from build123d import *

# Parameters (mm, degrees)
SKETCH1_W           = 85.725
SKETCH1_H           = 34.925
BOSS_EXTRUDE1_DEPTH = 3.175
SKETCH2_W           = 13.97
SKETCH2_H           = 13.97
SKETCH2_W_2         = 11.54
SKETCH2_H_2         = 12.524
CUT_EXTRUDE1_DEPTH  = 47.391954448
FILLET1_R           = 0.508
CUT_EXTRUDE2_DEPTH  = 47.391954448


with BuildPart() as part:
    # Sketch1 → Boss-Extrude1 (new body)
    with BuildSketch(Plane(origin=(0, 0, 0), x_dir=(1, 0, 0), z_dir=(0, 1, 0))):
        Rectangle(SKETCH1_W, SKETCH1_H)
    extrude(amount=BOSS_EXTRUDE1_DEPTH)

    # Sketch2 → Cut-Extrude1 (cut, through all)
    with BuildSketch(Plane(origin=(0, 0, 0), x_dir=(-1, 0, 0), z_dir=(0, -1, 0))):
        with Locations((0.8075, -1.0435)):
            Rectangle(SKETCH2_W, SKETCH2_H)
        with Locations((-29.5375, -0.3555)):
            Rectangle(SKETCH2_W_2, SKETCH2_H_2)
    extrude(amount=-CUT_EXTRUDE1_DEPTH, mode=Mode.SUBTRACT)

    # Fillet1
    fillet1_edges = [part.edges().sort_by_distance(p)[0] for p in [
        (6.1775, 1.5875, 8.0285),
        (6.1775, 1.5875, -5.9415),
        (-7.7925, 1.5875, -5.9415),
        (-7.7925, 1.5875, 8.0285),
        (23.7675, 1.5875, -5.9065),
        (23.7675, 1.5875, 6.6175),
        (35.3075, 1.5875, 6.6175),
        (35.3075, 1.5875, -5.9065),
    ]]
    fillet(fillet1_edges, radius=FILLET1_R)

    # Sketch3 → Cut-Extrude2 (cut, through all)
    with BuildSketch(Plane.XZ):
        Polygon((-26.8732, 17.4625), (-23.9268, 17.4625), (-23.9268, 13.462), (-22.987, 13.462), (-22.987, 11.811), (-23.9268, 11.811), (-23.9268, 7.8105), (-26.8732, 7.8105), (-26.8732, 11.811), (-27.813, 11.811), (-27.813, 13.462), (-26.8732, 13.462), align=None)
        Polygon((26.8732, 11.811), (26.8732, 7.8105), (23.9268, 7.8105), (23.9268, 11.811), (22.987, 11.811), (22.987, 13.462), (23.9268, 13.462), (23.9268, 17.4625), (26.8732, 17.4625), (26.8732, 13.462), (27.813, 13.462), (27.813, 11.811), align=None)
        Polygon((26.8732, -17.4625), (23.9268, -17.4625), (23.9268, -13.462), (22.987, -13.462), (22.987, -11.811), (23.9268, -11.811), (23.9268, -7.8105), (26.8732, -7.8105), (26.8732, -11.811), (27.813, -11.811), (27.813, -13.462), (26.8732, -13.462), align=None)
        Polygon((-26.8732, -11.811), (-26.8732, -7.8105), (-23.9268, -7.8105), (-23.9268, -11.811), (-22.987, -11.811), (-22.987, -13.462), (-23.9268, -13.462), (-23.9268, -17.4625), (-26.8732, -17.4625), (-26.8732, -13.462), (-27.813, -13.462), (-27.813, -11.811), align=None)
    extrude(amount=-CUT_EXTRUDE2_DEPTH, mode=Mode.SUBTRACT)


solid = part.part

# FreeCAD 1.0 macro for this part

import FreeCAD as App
import Part
import Sketcher
Q = App.Units.Quantity


def edges_at(feature, points):
    """Names of the edges that pass closest to the given points."""
    edges = feature.Shape.Edges
    near = lambda p: min(range(len(edges)), key=lambda i: edges[i].distToShape(Part.Vertex(*p))[0])
    return sorted({f"Edge{near(p) + 1}" for p in points})

doc = App.newDocument("Part")
body = doc.addObject("PartDesign::Body", "Body")

# Sketch on XZ plane
sketch1 = body.newObject("Sketcher::SketchObject", "Sketch")
sketch1.AttachmentSupport = (doc.getObject("XZ_Plane"), [""])
sketch1.MapMode = "FlatFace"
sketch1.addGeometry(Part.LineSegment(App.Vector(-42.8625, -17.4625, 0), App.Vector(-42.8625, 17.4625, 0)), False)
sketch1.addGeometry(Part.LineSegment(App.Vector(-42.8625, 17.4625, 0), App.Vector(42.8625, 17.4625, 0)), False)
sketch1.addGeometry(Part.LineSegment(App.Vector(42.8625, 17.4625, 0), App.Vector(42.8625, -17.4625, 0)), False)
sketch1.addGeometry(Part.LineSegment(App.Vector(42.8625, -17.4625, 0), App.Vector(-42.8625, -17.4625, 0)), False)
sketch1.addConstraint(Sketcher.Constraint("Coincident", 0, 2, 1, 1))
sketch1.addConstraint(Sketcher.Constraint("Coincident", 1, 2, 2, 1))
sketch1.addConstraint(Sketcher.Constraint("Coincident", 2, 2, 3, 1))
sketch1.addConstraint(Sketcher.Constraint("Coincident", 3, 2, 0, 1))
sketch1.addConstraint(Sketcher.Constraint("Vertical", 0))
sketch1.addConstraint(Sketcher.Constraint("Horizontal", 1))
sketch1.addConstraint(Sketcher.Constraint("Vertical", 2))
sketch1.addConstraint(Sketcher.Constraint("Horizontal", 3))
sketch1.addConstraint(Sketcher.Constraint("Symmetric", 0, 2, 2, 2, -1, 1))
sketch1.addConstraint(Sketcher.Constraint("DistanceX", 1, 1, 1, 2, Q("3.375 in")))
sketch1.addConstraint(Sketcher.Constraint("DistanceY", 0, 1, 0, 2, Q("1.375 in")))
pad1 = body.newObject("PartDesign::Pad", "Pad")
pad1.Profile = sketch1
pad1.Length = Q("0.125 in")
pad1.Reversed = True

# Sketch on XZ plane
sketch2 = body.newObject("Sketcher::SketchObject", "Sketch001")
sketch2.AttachmentSupport = (doc.getObject("XZ_Plane"), [""])
sketch2.MapMode = "FlatFace"
sketch2.addGeometry(Part.LineSegment(App.Vector(6.1775, -5.9415, 0), App.Vector(6.1775, 8.0285, 0)), False)
sketch2.addGeometry(Part.LineSegment(App.Vector(6.1775, 8.0285, 0), App.Vector(-7.7925, 8.0285, 0)), False)
sketch2.addGeometry(Part.LineSegment(App.Vector(-7.7925, 8.0285, 0), App.Vector(-7.7925, -5.9415, 0)), False)
sketch2.addGeometry(Part.LineSegment(App.Vector(-7.7925, -5.9415, 0), App.Vector(6.1775, -5.9415, 0)), False)
sketch2.addGeometry(Part.LineSegment(App.Vector(35.3075, -5.9065, 0), App.Vector(35.3075, 6.6175, 0)), False)
sketch2.addGeometry(Part.LineSegment(App.Vector(35.3075, 6.6175, 0), App.Vector(23.7675, 6.6175, 0)), False)
sketch2.addGeometry(Part.LineSegment(App.Vector(23.7675, 6.6175, 0), App.Vector(23.7675, -5.9065, 0)), False)
sketch2.addGeometry(Part.LineSegment(App.Vector(23.7675, -5.9065, 0), App.Vector(35.3075, -5.9065, 0)), False)
sketch2.addConstraint(Sketcher.Constraint("Coincident", 0, 2, 1, 1))
sketch2.addConstraint(Sketcher.Constraint("Coincident", 1, 2, 2, 1))
sketch2.addConstraint(Sketcher.Constraint("Coincident", 2, 2, 3, 1))
sketch2.addConstraint(Sketcher.Constraint("Coincident", 3, 2, 0, 1))
sketch2.addConstraint(Sketcher.Constraint("Coincident", 4, 2, 5, 1))
sketch2.addConstraint(Sketcher.Constraint("Coincident", 5, 2, 6, 1))
sketch2.addConstraint(Sketcher.Constraint("Coincident", 6, 2, 7, 1))
sketch2.addConstraint(Sketcher.Constraint("Coincident", 7, 2, 4, 1))
sketch2.addConstraint(Sketcher.Constraint("Vertical", 0))
sketch2.addConstraint(Sketcher.Constraint("Horizontal", 1))
sketch2.addConstraint(Sketcher.Constraint("Vertical", 2))
sketch2.addConstraint(Sketcher.Constraint("Horizontal", 3))
sketch2.addConstraint(Sketcher.Constraint("Vertical", 4))
sketch2.addConstraint(Sketcher.Constraint("Horizontal", 5))
sketch2.addConstraint(Sketcher.Constraint("Vertical", 6))
sketch2.addConstraint(Sketcher.Constraint("Horizontal", 7))
sketch2.addConstraint(Sketcher.Constraint("Equal", 3, 0))
sketch2.addConstraint(Sketcher.Constraint("DistanceX", 1, 2, 1, 1, Q("0.55 in")))
sketch2.addConstraint(Sketcher.Constraint("DistanceX", 5, 2, 5, 1, Q("11.54 mm")))
sketch2.addConstraint(Sketcher.Constraint("DistanceY", 4, 1, 4, 2, Q("12.524 mm")))
sketch2.addConstraint(Sketcher.Constraint("DistanceX", -1, 1, 0, 2, Q("6.1775 mm")))
sketch2.addConstraint(Sketcher.Constraint("DistanceY", -1, 1, 0, 2, Q("8.0285 mm")))
sketch2.addConstraint(Sketcher.Constraint("DistanceX", -1, 1, 4, 2, Q("35.3075 mm")))
sketch2.addConstraint(Sketcher.Constraint("DistanceY", -1, 1, 4, 2, Q("6.6175 mm")))
pocket1 = body.newObject("PartDesign::Pocket", "Pocket")
pocket1.Profile = sketch2
pocket1.Type = "ThroughAll"
doc.recompute()

fillet = body.newObject("PartDesign::Fillet", "Fillet")
fillet.Base = (pocket1, edges_at(pocket1, [
    (6.178, 1.587, 8.028),
    (6.178, 1.587, -5.941),
    (-7.793, 1.587, -5.941),
    (-7.793, 1.587, 8.028),
    (23.767, 1.587, -5.907),
    (23.767, 1.587, 6.617),
    (35.307, 1.587, 6.617),
    (35.307, 1.587, -5.907),
]))
fillet.Radius = Q("0.02 in")

# Sketch on XZ plane
sketch3 = body.newObject("Sketcher::SketchObject", "Sketch002")
sketch3.AttachmentSupport = (doc.getObject("XZ_Plane"), [""])
sketch3.MapMode = "FlatFace"
sketch3.addGeometry(Part.LineSegment(App.Vector(-23.9268, 17.4625, 0), App.Vector(-26.8732, 17.4625, 0)), False)
sketch3.addGeometry(Part.LineSegment(App.Vector(-26.8732, 17.4625, 0), App.Vector(-26.8732, 13.462, 0)), False)
sketch3.addGeometry(Part.LineSegment(App.Vector(-26.8732, 13.462, 0), App.Vector(-27.813, 13.462, 0)), False)
sketch3.addGeometry(Part.LineSegment(App.Vector(-27.813, 13.462, 0), App.Vector(-27.813, 11.811, 0)), False)
sketch3.addGeometry(Part.LineSegment(App.Vector(-27.813, 11.811, 0), App.Vector(-26.8732, 11.811, 0)), False)
sketch3.addGeometry(Part.LineSegment(App.Vector(-26.8732, 11.811, 0), App.Vector(-26.8732, 7.8105, 0)), False)
sketch3.addGeometry(Part.LineSegment(App.Vector(-26.8732, 7.8105, 0), App.Vector(-23.9268, 7.8105, 0)), False)
sketch3.addGeometry(Part.LineSegment(App.Vector(-23.9268, 7.8105, 0), App.Vector(-23.9268, 11.811, 0)), False)
sketch3.addGeometry(Part.LineSegment(App.Vector(-23.9268, 11.811, 0), App.Vector(-22.987, 11.811, 0)), False)
sketch3.addGeometry(Part.LineSegment(App.Vector(-22.987, 11.811, 0), App.Vector(-22.987, 13.462, 0)), False)
sketch3.addGeometry(Part.LineSegment(App.Vector(-22.987, 13.462, 0), App.Vector(-23.9268, 13.462, 0)), False)
sketch3.addGeometry(Part.LineSegment(App.Vector(-23.9268, 13.462, 0), App.Vector(-23.9268, 17.4625, 0)), False)
sketch3.addGeometry(Part.LineSegment(App.Vector(26.8732, 7.8105, 0), App.Vector(26.8732, 11.811, 0)), False)
sketch3.addGeometry(Part.LineSegment(App.Vector(26.8732, 11.811, 0), App.Vector(27.813, 11.811, 0)), False)
sketch3.addGeometry(Part.LineSegment(App.Vector(27.813, 11.811, 0), App.Vector(27.813, 13.462, 0)), False)
sketch3.addGeometry(Part.LineSegment(App.Vector(27.813, 13.462, 0), App.Vector(26.8732, 13.462, 0)), False)
sketch3.addGeometry(Part.LineSegment(App.Vector(26.8732, 13.462, 0), App.Vector(26.8732, 17.4625, 0)), False)
sketch3.addGeometry(Part.LineSegment(App.Vector(26.8732, 17.4625, 0), App.Vector(23.9268, 17.4625, 0)), False)
sketch3.addGeometry(Part.LineSegment(App.Vector(23.9268, 17.4625, 0), App.Vector(23.9268, 13.462, 0)), False)
sketch3.addGeometry(Part.LineSegment(App.Vector(23.9268, 13.462, 0), App.Vector(22.987, 13.462, 0)), False)
sketch3.addGeometry(Part.LineSegment(App.Vector(22.987, 13.462, 0), App.Vector(22.987, 11.811, 0)), False)
sketch3.addGeometry(Part.LineSegment(App.Vector(22.987, 11.811, 0), App.Vector(23.9268, 11.811, 0)), False)
sketch3.addGeometry(Part.LineSegment(App.Vector(23.9268, 11.811, 0), App.Vector(23.9268, 7.8105, 0)), False)
sketch3.addGeometry(Part.LineSegment(App.Vector(23.9268, 7.8105, 0), App.Vector(26.8732, 7.8105, 0)), False)
sketch3.addGeometry(Part.LineSegment(App.Vector(23.9268, -17.4625, 0), App.Vector(26.8732, -17.4625, 0)), False)
sketch3.addGeometry(Part.LineSegment(App.Vector(26.8732, -17.4625, 0), App.Vector(26.8732, -13.462, 0)), False)
sketch3.addGeometry(Part.LineSegment(App.Vector(26.8732, -13.462, 0), App.Vector(27.813, -13.462, 0)), False)
sketch3.addGeometry(Part.LineSegment(App.Vector(27.813, -13.462, 0), App.Vector(27.813, -11.811, 0)), False)
sketch3.addGeometry(Part.LineSegment(App.Vector(27.813, -11.811, 0), App.Vector(26.8732, -11.811, 0)), False)
sketch3.addGeometry(Part.LineSegment(App.Vector(26.8732, -11.811, 0), App.Vector(26.8732, -7.8105, 0)), False)
sketch3.addGeometry(Part.LineSegment(App.Vector(26.8732, -7.8105, 0), App.Vector(23.9268, -7.8105, 0)), False)
sketch3.addGeometry(Part.LineSegment(App.Vector(23.9268, -7.8105, 0), App.Vector(23.9268, -11.811, 0)), False)
sketch3.addGeometry(Part.LineSegment(App.Vector(23.9268, -11.811, 0), App.Vector(22.987, -11.811, 0)), False)
sketch3.addGeometry(Part.LineSegment(App.Vector(22.987, -11.811, 0), App.Vector(22.987, -13.462, 0)), False)
sketch3.addGeometry(Part.LineSegment(App.Vector(22.987, -13.462, 0), App.Vector(23.9268, -13.462, 0)), False)
sketch3.addGeometry(Part.LineSegment(App.Vector(23.9268, -13.462, 0), App.Vector(23.9268, -17.4625, 0)), False)
sketch3.addGeometry(Part.LineSegment(App.Vector(-26.8732, -7.8105, 0), App.Vector(-26.8732, -11.811, 0)), False)
sketch3.addGeometry(Part.LineSegment(App.Vector(-26.8732, -11.811, 0), App.Vector(-27.813, -11.811, 0)), False)
sketch3.addGeometry(Part.LineSegment(App.Vector(-27.813, -11.811, 0), App.Vector(-27.813, -13.462, 0)), False)
sketch3.addGeometry(Part.LineSegment(App.Vector(-27.813, -13.462, 0), App.Vector(-26.8732, -13.462, 0)), False)
sketch3.addGeometry(Part.LineSegment(App.Vector(-26.8732, -13.462, 0), App.Vector(-26.8732, -17.4625, 0)), False)
sketch3.addGeometry(Part.LineSegment(App.Vector(-26.8732, -17.4625, 0), App.Vector(-23.9268, -17.4625, 0)), False)
sketch3.addGeometry(Part.LineSegment(App.Vector(-23.9268, -17.4625, 0), App.Vector(-23.9268, -13.462, 0)), False)
sketch3.addGeometry(Part.LineSegment(App.Vector(-23.9268, -13.462, 0), App.Vector(-22.987, -13.462, 0)), False)
sketch3.addGeometry(Part.LineSegment(App.Vector(-22.987, -13.462, 0), App.Vector(-22.987, -11.811, 0)), False)
sketch3.addGeometry(Part.LineSegment(App.Vector(-22.987, -11.811, 0), App.Vector(-23.9268, -11.811, 0)), False)
sketch3.addGeometry(Part.LineSegment(App.Vector(-23.9268, -11.811, 0), App.Vector(-23.9268, -7.8105, 0)), False)
sketch3.addGeometry(Part.LineSegment(App.Vector(-23.9268, -7.8105, 0), App.Vector(-26.8732, -7.8105, 0)), False)
sketch3.addConstraint(Sketcher.Constraint("Coincident", 0, 2, 1, 1))
sketch3.addConstraint(Sketcher.Constraint("Coincident", 1, 2, 2, 1))
sketch3.addConstraint(Sketcher.Constraint("Coincident", 2, 2, 3, 1))
sketch3.addConstraint(Sketcher.Constraint("Coincident", 3, 2, 4, 1))
sketch3.addConstraint(Sketcher.Constraint("Coincident", 4, 2, 5, 1))
sketch3.addConstraint(Sketcher.Constraint("Coincident", 5, 2, 6, 1))
sketch3.addConstraint(Sketcher.Constraint("Coincident", 6, 2, 7, 1))
sketch3.addConstraint(Sketcher.Constraint("Coincident", 7, 2, 8, 1))
sketch3.addConstraint(Sketcher.Constraint("Coincident", 8, 2, 9, 1))
sketch3.addConstraint(Sketcher.Constraint("Coincident", 9, 2, 10, 1))
sketch3.addConstraint(Sketcher.Constraint("Coincident", 10, 2, 11, 1))
sketch3.addConstraint(Sketcher.Constraint("Coincident", 11, 2, 0, 1))
sketch3.addConstraint(Sketcher.Constraint("Coincident", 12, 2, 13, 1))
sketch3.addConstraint(Sketcher.Constraint("Coincident", 13, 2, 14, 1))
sketch3.addConstraint(Sketcher.Constraint("Coincident", 14, 2, 15, 1))
sketch3.addConstraint(Sketcher.Constraint("Coincident", 15, 2, 16, 1))
sketch3.addConstraint(Sketcher.Constraint("Coincident", 16, 2, 17, 1))
sketch3.addConstraint(Sketcher.Constraint("Coincident", 17, 2, 18, 1))
sketch3.addConstraint(Sketcher.Constraint("Coincident", 18, 2, 19, 1))
sketch3.addConstraint(Sketcher.Constraint("Coincident", 19, 2, 20, 1))
sketch3.addConstraint(Sketcher.Constraint("Coincident", 20, 2, 21, 1))
sketch3.addConstraint(Sketcher.Constraint("Coincident", 21, 2, 22, 1))
sketch3.addConstraint(Sketcher.Constraint("Coincident", 22, 2, 23, 1))
sketch3.addConstraint(Sketcher.Constraint("Coincident", 23, 2, 12, 1))
sketch3.addConstraint(Sketcher.Constraint("Coincident", 24, 2, 25, 1))
sketch3.addConstraint(Sketcher.Constraint("Coincident", 25, 2, 26, 1))
sketch3.addConstraint(Sketcher.Constraint("Coincident", 26, 2, 27, 1))
sketch3.addConstraint(Sketcher.Constraint("Coincident", 27, 2, 28, 1))
sketch3.addConstraint(Sketcher.Constraint("Coincident", 28, 2, 29, 1))
sketch3.addConstraint(Sketcher.Constraint("Coincident", 29, 2, 30, 1))
sketch3.addConstraint(Sketcher.Constraint("Coincident", 30, 2, 31, 1))
sketch3.addConstraint(Sketcher.Constraint("Coincident", 31, 2, 32, 1))
sketch3.addConstraint(Sketcher.Constraint("Coincident", 32, 2, 33, 1))
sketch3.addConstraint(Sketcher.Constraint("Coincident", 33, 2, 34, 1))
sketch3.addConstraint(Sketcher.Constraint("Coincident", 34, 2, 35, 1))
sketch3.addConstraint(Sketcher.Constraint("Coincident", 35, 2, 24, 1))
sketch3.addConstraint(Sketcher.Constraint("Coincident", 36, 2, 37, 1))
sketch3.addConstraint(Sketcher.Constraint("Coincident", 37, 2, 38, 1))
sketch3.addConstraint(Sketcher.Constraint("Coincident", 38, 2, 39, 1))
sketch3.addConstraint(Sketcher.Constraint("Coincident", 39, 2, 40, 1))
sketch3.addConstraint(Sketcher.Constraint("Coincident", 40, 2, 41, 1))
sketch3.addConstraint(Sketcher.Constraint("Coincident", 41, 2, 42, 1))
sketch3.addConstraint(Sketcher.Constraint("Coincident", 42, 2, 43, 1))
sketch3.addConstraint(Sketcher.Constraint("Coincident", 43, 2, 44, 1))
sketch3.addConstraint(Sketcher.Constraint("Coincident", 44, 2, 45, 1))
sketch3.addConstraint(Sketcher.Constraint("Coincident", 45, 2, 46, 1))
sketch3.addConstraint(Sketcher.Constraint("Coincident", 46, 2, 47, 1))
sketch3.addConstraint(Sketcher.Constraint("Coincident", 47, 2, 36, 1))
sketch3.addConstraint(Sketcher.Constraint("Horizontal", 0))
sketch3.addConstraint(Sketcher.Constraint("Vertical", 1))
sketch3.addConstraint(Sketcher.Constraint("Horizontal", 2))
sketch3.addConstraint(Sketcher.Constraint("Vertical", 3))
sketch3.addConstraint(Sketcher.Constraint("Horizontal", 4))
sketch3.addConstraint(Sketcher.Constraint("Vertical", 5))
sketch3.addConstraint(Sketcher.Constraint("Horizontal", 6))
sketch3.addConstraint(Sketcher.Constraint("Vertical", 7))
sketch3.addConstraint(Sketcher.Constraint("Horizontal", 8))
sketch3.addConstraint(Sketcher.Constraint("Vertical", 9))
sketch3.addConstraint(Sketcher.Constraint("Horizontal", 10))
sketch3.addConstraint(Sketcher.Constraint("Vertical", 11))
sketch3.addConstraint(Sketcher.Constraint("Vertical", 12))
sketch3.addConstraint(Sketcher.Constraint("Horizontal", 13))
sketch3.addConstraint(Sketcher.Constraint("Vertical", 14))
sketch3.addConstraint(Sketcher.Constraint("Horizontal", 15))
sketch3.addConstraint(Sketcher.Constraint("Vertical", 16))
sketch3.addConstraint(Sketcher.Constraint("Horizontal", 17))
sketch3.addConstraint(Sketcher.Constraint("Vertical", 18))
sketch3.addConstraint(Sketcher.Constraint("Horizontal", 19))
sketch3.addConstraint(Sketcher.Constraint("Vertical", 20))
sketch3.addConstraint(Sketcher.Constraint("Horizontal", 21))
sketch3.addConstraint(Sketcher.Constraint("Vertical", 22))
sketch3.addConstraint(Sketcher.Constraint("Horizontal", 23))
sketch3.addConstraint(Sketcher.Constraint("Horizontal", 24))
sketch3.addConstraint(Sketcher.Constraint("Vertical", 25))
sketch3.addConstraint(Sketcher.Constraint("Horizontal", 26))
sketch3.addConstraint(Sketcher.Constraint("Vertical", 27))
sketch3.addConstraint(Sketcher.Constraint("Horizontal", 28))
sketch3.addConstraint(Sketcher.Constraint("Vertical", 29))
sketch3.addConstraint(Sketcher.Constraint("Horizontal", 30))
sketch3.addConstraint(Sketcher.Constraint("Vertical", 31))
sketch3.addConstraint(Sketcher.Constraint("Horizontal", 32))
sketch3.addConstraint(Sketcher.Constraint("Vertical", 33))
sketch3.addConstraint(Sketcher.Constraint("Horizontal", 34))
sketch3.addConstraint(Sketcher.Constraint("Vertical", 35))
sketch3.addConstraint(Sketcher.Constraint("Vertical", 36))
sketch3.addConstraint(Sketcher.Constraint("Horizontal", 37))
sketch3.addConstraint(Sketcher.Constraint("Vertical", 38))
sketch3.addConstraint(Sketcher.Constraint("Horizontal", 39))
sketch3.addConstraint(Sketcher.Constraint("Vertical", 40))
sketch3.addConstraint(Sketcher.Constraint("Horizontal", 41))
sketch3.addConstraint(Sketcher.Constraint("Vertical", 42))
sketch3.addConstraint(Sketcher.Constraint("Horizontal", 43))
sketch3.addConstraint(Sketcher.Constraint("Vertical", 44))
sketch3.addConstraint(Sketcher.Constraint("Horizontal", 45))
sketch3.addConstraint(Sketcher.Constraint("Vertical", 46))
sketch3.addConstraint(Sketcher.Constraint("Horizontal", 47))
sketch3.addConstraint(Sketcher.Constraint("Symmetric", 0, 2, 24, 2, -1, 1))
sketch3.addConstraint(Sketcher.Constraint("Symmetric", 2, 2, 26, 2, -1, 1))
sketch3.addConstraint(Sketcher.Constraint("Symmetric", 4, 2, 28, 2, -1, 1))
sketch3.addConstraint(Sketcher.Constraint("Symmetric", 6, 2, 30, 2, -1, 1))
sketch3.addConstraint(Sketcher.Constraint("Symmetric", 8, 2, 32, 2, -1, 1))
sketch3.addConstraint(Sketcher.Constraint("Symmetric", 10, 2, 34, 2, -1, 1))
sketch3.addConstraint(Sketcher.Constraint("Symmetric", 12, 2, 36, 2, -1, 1))
sketch3.addConstraint(Sketcher.Constraint("Symmetric", 14, 2, 38, 2, -1, 1))
sketch3.addConstraint(Sketcher.Constraint("Symmetric", 16, 2, 40, 2, -1, 1))
sketch3.addConstraint(Sketcher.Constraint("Symmetric", 18, 2, 42, 2, -1, 1))
sketch3.addConstraint(Sketcher.Constraint("Symmetric", 20, 2, 44, 2, -1, 1))
sketch3.addConstraint(Sketcher.Constraint("Symmetric", 22, 2, 46, 2, -1, 1))
sketch3.addConstraint(Sketcher.Constraint("Symmetric", 4, 2, 12, 2, -2))
sketch3.addConstraint(Sketcher.Constraint("Symmetric", 2, 2, 14, 2, -2))
sketch3.addConstraint(Sketcher.Constraint("Symmetric", 0, 2, 16, 2, -2))
sketch3.addConstraint(Sketcher.Constraint("Symmetric", 10, 2, 18, 2, -2))
sketch3.addConstraint(Sketcher.Constraint("Symmetric", 8, 2, 20, 2, -2))
sketch3.addConstraint(Sketcher.Constraint("Symmetric", 6, 2, 22, 2, -2))
sketch3.addConstraint(Sketcher.Constraint("Horizontal", 4, 2, 7, 2))
sketch3.addConstraint(Sketcher.Constraint("Horizontal", 2, 2, 9, 2))
sketch3.addConstraint(Sketcher.Constraint("Vertical", 1, 2, 4, 2))
sketch3.addConstraint(Sketcher.Constraint("Vertical", 7, 2, 10, 2))
sketch3.addConstraint(Sketcher.Constraint("Equal", 4, 8))
sketch3.addConstraint(Sketcher.Constraint("Equal", 1, 5))
sketch3.addConstraint(Sketcher.Constraint("DistanceX", 7, 2, 12, 2, Q("2 in")))
sketch3.addConstraint(Sketcher.Constraint("DistanceX", 0, 2, 0, 1, Q("0.116 in")))
sketch3.addConstraint(Sketcher.Constraint("DistanceX", 2, 2, 2, 1, Q("0.037 in")))
sketch3.addConstraint(Sketcher.Constraint("DistanceY", 3, 2, 3, 1, Q("0.065 in")))
sketch3.addConstraint(Sketcher.Constraint("DistanceY", -1, 1, 1, 2, Q("0.53 in")))
sketch3.addConstraint(Sketcher.Constraint("DistanceY", 5, 2, 0, 2, Q("0.38 in")))
pocket2 = body.newObject("PartDesign::Pocket", "Pocket001")
pocket2.Profile = sketch3
pocket2.Type = "ThroughAll"

doc.recompute()
